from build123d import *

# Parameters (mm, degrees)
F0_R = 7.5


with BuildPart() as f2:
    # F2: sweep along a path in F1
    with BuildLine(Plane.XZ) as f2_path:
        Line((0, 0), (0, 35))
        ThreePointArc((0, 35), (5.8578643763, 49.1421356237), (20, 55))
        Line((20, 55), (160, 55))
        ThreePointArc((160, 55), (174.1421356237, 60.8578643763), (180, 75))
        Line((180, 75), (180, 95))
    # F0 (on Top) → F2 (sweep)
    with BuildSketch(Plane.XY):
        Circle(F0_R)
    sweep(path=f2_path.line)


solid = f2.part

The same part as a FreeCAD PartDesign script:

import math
import FreeCAD as App
import Part
import Sketcher
from FreeCAD import Vector

doc = App.newDocument("Part")
params = doc.addObject("Spreadsheet::Sheet", "Params")
for row, (alias, value) in enumerate([
    ("sketch1_diameter", "15 mm"),
    ("sketch2_radius", "20 mm"),
    ("sketch2_width", "140 mm"),
    ("sketch2_height", "35 mm"),
    ("sketch2_height2", "20 mm"),
], start=1):
    params.set(f"A{row}", alias)
    params.set(f"B{row}", "=" + value)
    params.setAlias(f"B{row}", alias)

body = doc.addObject("PartDesign::Body", "Body")

sketch1 = doc.addObject("Sketcher::SketchObject", "Sketch")
body.addObject(sketch1)
sketch1.AttachmentSupport = (doc.XY_Plane, [""])
sketch1.MapMode = "FlatFace"
sketch1.addGeometry(Part.Circle(Vector(0, 0, 0), Vector(0, 0, 1), 8), False)
sketch1.addConstraint([
    Sketcher.Constraint("Coincident", 0, 3, -1, 1),
    Sketcher.Constraint("Diameter", 0, 15.0),
])
sketch1.setExpression("Constraints[1]", "Params.sketch1_diameter")

sketch2 = doc.addObject("Sketcher::SketchObject", "Sketch001")
body.addObject(sketch2)
sketch2.AttachmentSupport = (doc.XZ_Plane, [""])
sketch2.MapMode = "FlatFace"
sketch2.addGeometry([
    Part.LineSegment(Vector(0, 0, 0), Vector(0, 35, 0)),
    Part.ArcOfCircle(Part.Circle(Vector(20, 35, 0), Vector(0, 0, 1), 20), math.radians(90), math.radians(180)),
    Part.LineSegment(Vector(20, 55, 0), Vector(160, 55, 0)),
    Part.ArcOfCircle(Part.Circle(Vector(160, 75, 0), Vector(0, 0, 1), 20), math.radians(-90), math.radians(0)),
    Part.LineSegment(Vector(180, 75, 0), Vector(180, 95, 0)),
], False)
sketch2.addConstraint([
    Sketcher.Constraint("Tangent", 0, 2, 1, 2),
    Sketcher.Constraint("Tangent", 1, 1, 2, 1),
    Sketcher.Constraint("Tangent", 2, 2, 3, 1),
    Sketcher.Constraint("Tangent", 3, 2, 4, 1),
    Sketcher.Constraint("Vertical", 0),
    Sketcher.Constraint("Horizontal", 2),
    Sketcher.Constraint("Vertical", 4),
    Sketcher.Constraint("Coincident", 0, 1, -1, 1),
    Sketcher.Constraint("Equal", 1, 3),
    Sketcher.Constraint("Radius", 1, 20.0),
    Sketcher.Constraint("DistanceX", 2, 1, 2, 2, 140.0),
    Sketcher.Constraint("DistanceY", 0, 1, 0, 2, 35.0),
    Sketcher.Constraint("DistanceY", 4, 1, 4, 2, 20.0),
])
sketch2.setExpression("Constraints[9]", "Params.sketch2_radius")
sketch2.setExpression("Constraints[10]", "Params.sketch2_width")
sketch2.setExpression("Constraints[11]", "Params.sketch2_height")
sketch2.setExpression("Constraints[12]", "Params.sketch2_height2")
doc.recompute()

additivepipe = doc.addObject("PartDesign::AdditivePipe", "AdditivePipe")
body.addObject(additivepipe)
additivepipe.Profile = sketch1
additivepipe.Spine = (sketch2, ["Edge1", "Edge2", "Edge3", "Edge4", "Edge5"])

doc.recompute()
